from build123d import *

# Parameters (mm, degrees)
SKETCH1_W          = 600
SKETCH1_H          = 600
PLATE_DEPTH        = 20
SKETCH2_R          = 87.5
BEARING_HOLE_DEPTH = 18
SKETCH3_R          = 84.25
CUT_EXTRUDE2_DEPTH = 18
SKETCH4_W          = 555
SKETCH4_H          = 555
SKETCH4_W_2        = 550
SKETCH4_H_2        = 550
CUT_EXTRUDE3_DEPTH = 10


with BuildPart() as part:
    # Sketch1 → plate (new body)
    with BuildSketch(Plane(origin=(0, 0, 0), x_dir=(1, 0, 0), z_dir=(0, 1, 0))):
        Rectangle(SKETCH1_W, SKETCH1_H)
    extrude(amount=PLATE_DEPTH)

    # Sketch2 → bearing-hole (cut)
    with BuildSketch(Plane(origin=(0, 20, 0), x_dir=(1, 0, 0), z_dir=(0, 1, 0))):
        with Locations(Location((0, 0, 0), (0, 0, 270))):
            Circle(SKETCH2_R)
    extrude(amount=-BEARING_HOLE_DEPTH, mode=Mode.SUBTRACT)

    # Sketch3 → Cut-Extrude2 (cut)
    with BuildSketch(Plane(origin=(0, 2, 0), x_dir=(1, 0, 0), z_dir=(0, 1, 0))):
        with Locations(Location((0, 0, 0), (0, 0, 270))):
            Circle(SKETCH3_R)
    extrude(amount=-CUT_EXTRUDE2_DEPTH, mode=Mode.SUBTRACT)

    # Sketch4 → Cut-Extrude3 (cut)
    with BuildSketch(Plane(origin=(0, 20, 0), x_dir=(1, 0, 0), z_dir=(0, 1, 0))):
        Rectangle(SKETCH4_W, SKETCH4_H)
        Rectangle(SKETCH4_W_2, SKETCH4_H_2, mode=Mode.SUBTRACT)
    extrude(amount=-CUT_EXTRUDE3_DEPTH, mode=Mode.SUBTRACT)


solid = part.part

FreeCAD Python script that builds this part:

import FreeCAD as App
import Part
import Sketcher
from FreeCAD import Vector
Q = App.Units.Quantity


def add_polygon(sketch, points):
    """Adds a closed chain of lines whose ends are joined by coincident constraints."""
    first, n = sketch.GeometryCount, len(points)
    for a, b in zip(points, points[1:] + points[:1]):
        sketch.addGeometry(Part.LineSegment(App.Vector(*a, 0), App.Vector(*b, 0)), False)
    for i in range(n):
        sketch.addConstraint(Sketcher.Constraint("Coincident", first + i, 2, first + (i + 1) % n, 1))

doc = App.newDocument("Part")
body = doc.addObject("PartDesign::Body", "Body")

sketch1 = body.newObject("Sketcher::SketchObject", "Sketch")
sketch1.AttachmentSupport = (doc.getObject("XZ_Plane"), [""])
sketch1.MapMode = "FlatFace"
add_polygon(sketch1, [(-300, -300), (-300, 300), (300, 300), (300, -300)])
sketch1.addConstraint(Sketcher.Constraint("Vertical", 0))
sketch1.addConstraint(Sketcher.Constraint("Horizontal", 1))
sketch1.addConstraint(Sketcher.Constraint("Vertical", 2))
sketch1.addConstraint(Sketcher.Constraint("Horizontal", 3))
sketch1.addConstraint(Sketcher.Constraint("Symmetric", 0, 2, 2, 2, -1, 1))
sketch1.addConstraint(Sketcher.Constraint("Equal", 3, 0))
sketch1.addConstraint(Sketcher.Constraint("DistanceX", 1, 1, 1, 2, Q("600 mm")))
pad1 = body.newObject("PartDesign::Pad", "Pad")
pad1.Profile = sketch1
pad1.Length = 20
pad1.Reversed = True

sketch2 = body.newObject("Sketcher::SketchObject", "Sketch001")
sketch2.AttachmentSupport = (doc.getObject("XZ_Plane"), [""])
sketch2.MapMode = "FlatFace"
sketch2.AttachmentOffset = App.Placement(Vector(0, 0, -20), App.Rotation())
sketch2.addGeometry(Part.Circle(Vector(0, 0, 0), Vector(0, 0, 1), 87.5), False)
sketch2.addConstraint(Sketcher.Constraint("Coincident", 0, 3, -1, 1))
sketch2.addConstraint(Sketcher.Constraint("Diameter", 0, Q("175 mm")))
pocket1 = body.newObject("PartDesign::Pocket", "Pocket")
pocket1.Profile = sketch2
pocket1.Length = 18
pocket1.Reversed = True

sketch3 = body.newObject("Sketcher::SketchObject", "Sketch002")
sketch3.AttachmentSupport = (doc.getObject("XZ_Plane"), [""])
sketch3.MapMode = "FlatFace"
sketch3.AttachmentOffset = App.Placement(Vector(0, 0, -2), App.Rotation())
sketch3.addGeometry(Part.Circle(Vector(0, 0, 0), Vector(0, 0, 1), 84.25), False)
sketch3.addConstraint(Sketcher.Constraint("Coincident", 0, 3, -1, 1))
sketch3.addConstraint(Sketcher.Constraint("Diameter", 0, Q("168.5 mm")))
pocket2 = body.newObject("PartDesign::Pocket", "Pocket001")
pocket2.Profile = sketch3
pocket2.Length = 18
pocket2.Reversed = True

sketch4 = body.newObject("Sketcher::SketchObject", "Sketch003")
sketch4.AttachmentSupport = (doc.getObject("XZ_Plane"), [""])
sketch4.MapMode = "FlatFace"
sketch4.AttachmentOffset = App.Placement(Vector(0, 0, -20), App.Rotation())
add_polygon(sketch4, [(-277.5, -277.5), (-277.5, 277.5), (277.5, 277.5), (277.5, -277.5)])
add_polygon(sketch4, [(275, 275), (-275, 275), (-275, -275), (275, -275)])
sketch4.addConstraint(Sketcher.Constraint("Vertical", 0))
sketch4.addConstraint(Sketcher.Constraint("Horizontal", 1))
sketch4.addConstraint(Sketcher.Constraint("Vertical", 2))
sketch4.addConstraint(Sketcher.Constraint("Horizontal", 3))
sketch4.addConstraint(Sketcher.Constraint("Horizontal", 4))
sketch4.addConstraint(Sketcher.Constraint("Vertical", 5))
sketch4.addConstraint(Sketcher.Constraint("Horizontal", 6))
sketch4.addConstraint(Sketcher.Constraint("Vertical", 7))
sketch4.addConstraint(Sketcher.Constraint("Symmetric", 0, 2, 2, 2, -1, 1))
sketch4.addConstraint(Sketcher.Constraint("Symmetric", 4, 2, 6, 2, -1, 1))
sketch4.addConstraint(Sketcher.Constraint("Equal", 3, 0))
sketch4.addConstraint(Sketcher.Constraint("Equal", 6, 5))
sketch4.addConstraint(Sketcher.Constraint("DistanceX", 1, 1, 1, 2, Q("555 mm")))
sketch4.addConstraint(Sketcher.Constraint("DistanceX", 4, 2, 4, 1, Q("550 mm")))
pocket3 = body.newObject("PartDesign::Pocket", "Pocket002")
pocket3.Profile = sketch4
pocket3.Length = 10
pocket3.Reversed = True

doc.recompute()
